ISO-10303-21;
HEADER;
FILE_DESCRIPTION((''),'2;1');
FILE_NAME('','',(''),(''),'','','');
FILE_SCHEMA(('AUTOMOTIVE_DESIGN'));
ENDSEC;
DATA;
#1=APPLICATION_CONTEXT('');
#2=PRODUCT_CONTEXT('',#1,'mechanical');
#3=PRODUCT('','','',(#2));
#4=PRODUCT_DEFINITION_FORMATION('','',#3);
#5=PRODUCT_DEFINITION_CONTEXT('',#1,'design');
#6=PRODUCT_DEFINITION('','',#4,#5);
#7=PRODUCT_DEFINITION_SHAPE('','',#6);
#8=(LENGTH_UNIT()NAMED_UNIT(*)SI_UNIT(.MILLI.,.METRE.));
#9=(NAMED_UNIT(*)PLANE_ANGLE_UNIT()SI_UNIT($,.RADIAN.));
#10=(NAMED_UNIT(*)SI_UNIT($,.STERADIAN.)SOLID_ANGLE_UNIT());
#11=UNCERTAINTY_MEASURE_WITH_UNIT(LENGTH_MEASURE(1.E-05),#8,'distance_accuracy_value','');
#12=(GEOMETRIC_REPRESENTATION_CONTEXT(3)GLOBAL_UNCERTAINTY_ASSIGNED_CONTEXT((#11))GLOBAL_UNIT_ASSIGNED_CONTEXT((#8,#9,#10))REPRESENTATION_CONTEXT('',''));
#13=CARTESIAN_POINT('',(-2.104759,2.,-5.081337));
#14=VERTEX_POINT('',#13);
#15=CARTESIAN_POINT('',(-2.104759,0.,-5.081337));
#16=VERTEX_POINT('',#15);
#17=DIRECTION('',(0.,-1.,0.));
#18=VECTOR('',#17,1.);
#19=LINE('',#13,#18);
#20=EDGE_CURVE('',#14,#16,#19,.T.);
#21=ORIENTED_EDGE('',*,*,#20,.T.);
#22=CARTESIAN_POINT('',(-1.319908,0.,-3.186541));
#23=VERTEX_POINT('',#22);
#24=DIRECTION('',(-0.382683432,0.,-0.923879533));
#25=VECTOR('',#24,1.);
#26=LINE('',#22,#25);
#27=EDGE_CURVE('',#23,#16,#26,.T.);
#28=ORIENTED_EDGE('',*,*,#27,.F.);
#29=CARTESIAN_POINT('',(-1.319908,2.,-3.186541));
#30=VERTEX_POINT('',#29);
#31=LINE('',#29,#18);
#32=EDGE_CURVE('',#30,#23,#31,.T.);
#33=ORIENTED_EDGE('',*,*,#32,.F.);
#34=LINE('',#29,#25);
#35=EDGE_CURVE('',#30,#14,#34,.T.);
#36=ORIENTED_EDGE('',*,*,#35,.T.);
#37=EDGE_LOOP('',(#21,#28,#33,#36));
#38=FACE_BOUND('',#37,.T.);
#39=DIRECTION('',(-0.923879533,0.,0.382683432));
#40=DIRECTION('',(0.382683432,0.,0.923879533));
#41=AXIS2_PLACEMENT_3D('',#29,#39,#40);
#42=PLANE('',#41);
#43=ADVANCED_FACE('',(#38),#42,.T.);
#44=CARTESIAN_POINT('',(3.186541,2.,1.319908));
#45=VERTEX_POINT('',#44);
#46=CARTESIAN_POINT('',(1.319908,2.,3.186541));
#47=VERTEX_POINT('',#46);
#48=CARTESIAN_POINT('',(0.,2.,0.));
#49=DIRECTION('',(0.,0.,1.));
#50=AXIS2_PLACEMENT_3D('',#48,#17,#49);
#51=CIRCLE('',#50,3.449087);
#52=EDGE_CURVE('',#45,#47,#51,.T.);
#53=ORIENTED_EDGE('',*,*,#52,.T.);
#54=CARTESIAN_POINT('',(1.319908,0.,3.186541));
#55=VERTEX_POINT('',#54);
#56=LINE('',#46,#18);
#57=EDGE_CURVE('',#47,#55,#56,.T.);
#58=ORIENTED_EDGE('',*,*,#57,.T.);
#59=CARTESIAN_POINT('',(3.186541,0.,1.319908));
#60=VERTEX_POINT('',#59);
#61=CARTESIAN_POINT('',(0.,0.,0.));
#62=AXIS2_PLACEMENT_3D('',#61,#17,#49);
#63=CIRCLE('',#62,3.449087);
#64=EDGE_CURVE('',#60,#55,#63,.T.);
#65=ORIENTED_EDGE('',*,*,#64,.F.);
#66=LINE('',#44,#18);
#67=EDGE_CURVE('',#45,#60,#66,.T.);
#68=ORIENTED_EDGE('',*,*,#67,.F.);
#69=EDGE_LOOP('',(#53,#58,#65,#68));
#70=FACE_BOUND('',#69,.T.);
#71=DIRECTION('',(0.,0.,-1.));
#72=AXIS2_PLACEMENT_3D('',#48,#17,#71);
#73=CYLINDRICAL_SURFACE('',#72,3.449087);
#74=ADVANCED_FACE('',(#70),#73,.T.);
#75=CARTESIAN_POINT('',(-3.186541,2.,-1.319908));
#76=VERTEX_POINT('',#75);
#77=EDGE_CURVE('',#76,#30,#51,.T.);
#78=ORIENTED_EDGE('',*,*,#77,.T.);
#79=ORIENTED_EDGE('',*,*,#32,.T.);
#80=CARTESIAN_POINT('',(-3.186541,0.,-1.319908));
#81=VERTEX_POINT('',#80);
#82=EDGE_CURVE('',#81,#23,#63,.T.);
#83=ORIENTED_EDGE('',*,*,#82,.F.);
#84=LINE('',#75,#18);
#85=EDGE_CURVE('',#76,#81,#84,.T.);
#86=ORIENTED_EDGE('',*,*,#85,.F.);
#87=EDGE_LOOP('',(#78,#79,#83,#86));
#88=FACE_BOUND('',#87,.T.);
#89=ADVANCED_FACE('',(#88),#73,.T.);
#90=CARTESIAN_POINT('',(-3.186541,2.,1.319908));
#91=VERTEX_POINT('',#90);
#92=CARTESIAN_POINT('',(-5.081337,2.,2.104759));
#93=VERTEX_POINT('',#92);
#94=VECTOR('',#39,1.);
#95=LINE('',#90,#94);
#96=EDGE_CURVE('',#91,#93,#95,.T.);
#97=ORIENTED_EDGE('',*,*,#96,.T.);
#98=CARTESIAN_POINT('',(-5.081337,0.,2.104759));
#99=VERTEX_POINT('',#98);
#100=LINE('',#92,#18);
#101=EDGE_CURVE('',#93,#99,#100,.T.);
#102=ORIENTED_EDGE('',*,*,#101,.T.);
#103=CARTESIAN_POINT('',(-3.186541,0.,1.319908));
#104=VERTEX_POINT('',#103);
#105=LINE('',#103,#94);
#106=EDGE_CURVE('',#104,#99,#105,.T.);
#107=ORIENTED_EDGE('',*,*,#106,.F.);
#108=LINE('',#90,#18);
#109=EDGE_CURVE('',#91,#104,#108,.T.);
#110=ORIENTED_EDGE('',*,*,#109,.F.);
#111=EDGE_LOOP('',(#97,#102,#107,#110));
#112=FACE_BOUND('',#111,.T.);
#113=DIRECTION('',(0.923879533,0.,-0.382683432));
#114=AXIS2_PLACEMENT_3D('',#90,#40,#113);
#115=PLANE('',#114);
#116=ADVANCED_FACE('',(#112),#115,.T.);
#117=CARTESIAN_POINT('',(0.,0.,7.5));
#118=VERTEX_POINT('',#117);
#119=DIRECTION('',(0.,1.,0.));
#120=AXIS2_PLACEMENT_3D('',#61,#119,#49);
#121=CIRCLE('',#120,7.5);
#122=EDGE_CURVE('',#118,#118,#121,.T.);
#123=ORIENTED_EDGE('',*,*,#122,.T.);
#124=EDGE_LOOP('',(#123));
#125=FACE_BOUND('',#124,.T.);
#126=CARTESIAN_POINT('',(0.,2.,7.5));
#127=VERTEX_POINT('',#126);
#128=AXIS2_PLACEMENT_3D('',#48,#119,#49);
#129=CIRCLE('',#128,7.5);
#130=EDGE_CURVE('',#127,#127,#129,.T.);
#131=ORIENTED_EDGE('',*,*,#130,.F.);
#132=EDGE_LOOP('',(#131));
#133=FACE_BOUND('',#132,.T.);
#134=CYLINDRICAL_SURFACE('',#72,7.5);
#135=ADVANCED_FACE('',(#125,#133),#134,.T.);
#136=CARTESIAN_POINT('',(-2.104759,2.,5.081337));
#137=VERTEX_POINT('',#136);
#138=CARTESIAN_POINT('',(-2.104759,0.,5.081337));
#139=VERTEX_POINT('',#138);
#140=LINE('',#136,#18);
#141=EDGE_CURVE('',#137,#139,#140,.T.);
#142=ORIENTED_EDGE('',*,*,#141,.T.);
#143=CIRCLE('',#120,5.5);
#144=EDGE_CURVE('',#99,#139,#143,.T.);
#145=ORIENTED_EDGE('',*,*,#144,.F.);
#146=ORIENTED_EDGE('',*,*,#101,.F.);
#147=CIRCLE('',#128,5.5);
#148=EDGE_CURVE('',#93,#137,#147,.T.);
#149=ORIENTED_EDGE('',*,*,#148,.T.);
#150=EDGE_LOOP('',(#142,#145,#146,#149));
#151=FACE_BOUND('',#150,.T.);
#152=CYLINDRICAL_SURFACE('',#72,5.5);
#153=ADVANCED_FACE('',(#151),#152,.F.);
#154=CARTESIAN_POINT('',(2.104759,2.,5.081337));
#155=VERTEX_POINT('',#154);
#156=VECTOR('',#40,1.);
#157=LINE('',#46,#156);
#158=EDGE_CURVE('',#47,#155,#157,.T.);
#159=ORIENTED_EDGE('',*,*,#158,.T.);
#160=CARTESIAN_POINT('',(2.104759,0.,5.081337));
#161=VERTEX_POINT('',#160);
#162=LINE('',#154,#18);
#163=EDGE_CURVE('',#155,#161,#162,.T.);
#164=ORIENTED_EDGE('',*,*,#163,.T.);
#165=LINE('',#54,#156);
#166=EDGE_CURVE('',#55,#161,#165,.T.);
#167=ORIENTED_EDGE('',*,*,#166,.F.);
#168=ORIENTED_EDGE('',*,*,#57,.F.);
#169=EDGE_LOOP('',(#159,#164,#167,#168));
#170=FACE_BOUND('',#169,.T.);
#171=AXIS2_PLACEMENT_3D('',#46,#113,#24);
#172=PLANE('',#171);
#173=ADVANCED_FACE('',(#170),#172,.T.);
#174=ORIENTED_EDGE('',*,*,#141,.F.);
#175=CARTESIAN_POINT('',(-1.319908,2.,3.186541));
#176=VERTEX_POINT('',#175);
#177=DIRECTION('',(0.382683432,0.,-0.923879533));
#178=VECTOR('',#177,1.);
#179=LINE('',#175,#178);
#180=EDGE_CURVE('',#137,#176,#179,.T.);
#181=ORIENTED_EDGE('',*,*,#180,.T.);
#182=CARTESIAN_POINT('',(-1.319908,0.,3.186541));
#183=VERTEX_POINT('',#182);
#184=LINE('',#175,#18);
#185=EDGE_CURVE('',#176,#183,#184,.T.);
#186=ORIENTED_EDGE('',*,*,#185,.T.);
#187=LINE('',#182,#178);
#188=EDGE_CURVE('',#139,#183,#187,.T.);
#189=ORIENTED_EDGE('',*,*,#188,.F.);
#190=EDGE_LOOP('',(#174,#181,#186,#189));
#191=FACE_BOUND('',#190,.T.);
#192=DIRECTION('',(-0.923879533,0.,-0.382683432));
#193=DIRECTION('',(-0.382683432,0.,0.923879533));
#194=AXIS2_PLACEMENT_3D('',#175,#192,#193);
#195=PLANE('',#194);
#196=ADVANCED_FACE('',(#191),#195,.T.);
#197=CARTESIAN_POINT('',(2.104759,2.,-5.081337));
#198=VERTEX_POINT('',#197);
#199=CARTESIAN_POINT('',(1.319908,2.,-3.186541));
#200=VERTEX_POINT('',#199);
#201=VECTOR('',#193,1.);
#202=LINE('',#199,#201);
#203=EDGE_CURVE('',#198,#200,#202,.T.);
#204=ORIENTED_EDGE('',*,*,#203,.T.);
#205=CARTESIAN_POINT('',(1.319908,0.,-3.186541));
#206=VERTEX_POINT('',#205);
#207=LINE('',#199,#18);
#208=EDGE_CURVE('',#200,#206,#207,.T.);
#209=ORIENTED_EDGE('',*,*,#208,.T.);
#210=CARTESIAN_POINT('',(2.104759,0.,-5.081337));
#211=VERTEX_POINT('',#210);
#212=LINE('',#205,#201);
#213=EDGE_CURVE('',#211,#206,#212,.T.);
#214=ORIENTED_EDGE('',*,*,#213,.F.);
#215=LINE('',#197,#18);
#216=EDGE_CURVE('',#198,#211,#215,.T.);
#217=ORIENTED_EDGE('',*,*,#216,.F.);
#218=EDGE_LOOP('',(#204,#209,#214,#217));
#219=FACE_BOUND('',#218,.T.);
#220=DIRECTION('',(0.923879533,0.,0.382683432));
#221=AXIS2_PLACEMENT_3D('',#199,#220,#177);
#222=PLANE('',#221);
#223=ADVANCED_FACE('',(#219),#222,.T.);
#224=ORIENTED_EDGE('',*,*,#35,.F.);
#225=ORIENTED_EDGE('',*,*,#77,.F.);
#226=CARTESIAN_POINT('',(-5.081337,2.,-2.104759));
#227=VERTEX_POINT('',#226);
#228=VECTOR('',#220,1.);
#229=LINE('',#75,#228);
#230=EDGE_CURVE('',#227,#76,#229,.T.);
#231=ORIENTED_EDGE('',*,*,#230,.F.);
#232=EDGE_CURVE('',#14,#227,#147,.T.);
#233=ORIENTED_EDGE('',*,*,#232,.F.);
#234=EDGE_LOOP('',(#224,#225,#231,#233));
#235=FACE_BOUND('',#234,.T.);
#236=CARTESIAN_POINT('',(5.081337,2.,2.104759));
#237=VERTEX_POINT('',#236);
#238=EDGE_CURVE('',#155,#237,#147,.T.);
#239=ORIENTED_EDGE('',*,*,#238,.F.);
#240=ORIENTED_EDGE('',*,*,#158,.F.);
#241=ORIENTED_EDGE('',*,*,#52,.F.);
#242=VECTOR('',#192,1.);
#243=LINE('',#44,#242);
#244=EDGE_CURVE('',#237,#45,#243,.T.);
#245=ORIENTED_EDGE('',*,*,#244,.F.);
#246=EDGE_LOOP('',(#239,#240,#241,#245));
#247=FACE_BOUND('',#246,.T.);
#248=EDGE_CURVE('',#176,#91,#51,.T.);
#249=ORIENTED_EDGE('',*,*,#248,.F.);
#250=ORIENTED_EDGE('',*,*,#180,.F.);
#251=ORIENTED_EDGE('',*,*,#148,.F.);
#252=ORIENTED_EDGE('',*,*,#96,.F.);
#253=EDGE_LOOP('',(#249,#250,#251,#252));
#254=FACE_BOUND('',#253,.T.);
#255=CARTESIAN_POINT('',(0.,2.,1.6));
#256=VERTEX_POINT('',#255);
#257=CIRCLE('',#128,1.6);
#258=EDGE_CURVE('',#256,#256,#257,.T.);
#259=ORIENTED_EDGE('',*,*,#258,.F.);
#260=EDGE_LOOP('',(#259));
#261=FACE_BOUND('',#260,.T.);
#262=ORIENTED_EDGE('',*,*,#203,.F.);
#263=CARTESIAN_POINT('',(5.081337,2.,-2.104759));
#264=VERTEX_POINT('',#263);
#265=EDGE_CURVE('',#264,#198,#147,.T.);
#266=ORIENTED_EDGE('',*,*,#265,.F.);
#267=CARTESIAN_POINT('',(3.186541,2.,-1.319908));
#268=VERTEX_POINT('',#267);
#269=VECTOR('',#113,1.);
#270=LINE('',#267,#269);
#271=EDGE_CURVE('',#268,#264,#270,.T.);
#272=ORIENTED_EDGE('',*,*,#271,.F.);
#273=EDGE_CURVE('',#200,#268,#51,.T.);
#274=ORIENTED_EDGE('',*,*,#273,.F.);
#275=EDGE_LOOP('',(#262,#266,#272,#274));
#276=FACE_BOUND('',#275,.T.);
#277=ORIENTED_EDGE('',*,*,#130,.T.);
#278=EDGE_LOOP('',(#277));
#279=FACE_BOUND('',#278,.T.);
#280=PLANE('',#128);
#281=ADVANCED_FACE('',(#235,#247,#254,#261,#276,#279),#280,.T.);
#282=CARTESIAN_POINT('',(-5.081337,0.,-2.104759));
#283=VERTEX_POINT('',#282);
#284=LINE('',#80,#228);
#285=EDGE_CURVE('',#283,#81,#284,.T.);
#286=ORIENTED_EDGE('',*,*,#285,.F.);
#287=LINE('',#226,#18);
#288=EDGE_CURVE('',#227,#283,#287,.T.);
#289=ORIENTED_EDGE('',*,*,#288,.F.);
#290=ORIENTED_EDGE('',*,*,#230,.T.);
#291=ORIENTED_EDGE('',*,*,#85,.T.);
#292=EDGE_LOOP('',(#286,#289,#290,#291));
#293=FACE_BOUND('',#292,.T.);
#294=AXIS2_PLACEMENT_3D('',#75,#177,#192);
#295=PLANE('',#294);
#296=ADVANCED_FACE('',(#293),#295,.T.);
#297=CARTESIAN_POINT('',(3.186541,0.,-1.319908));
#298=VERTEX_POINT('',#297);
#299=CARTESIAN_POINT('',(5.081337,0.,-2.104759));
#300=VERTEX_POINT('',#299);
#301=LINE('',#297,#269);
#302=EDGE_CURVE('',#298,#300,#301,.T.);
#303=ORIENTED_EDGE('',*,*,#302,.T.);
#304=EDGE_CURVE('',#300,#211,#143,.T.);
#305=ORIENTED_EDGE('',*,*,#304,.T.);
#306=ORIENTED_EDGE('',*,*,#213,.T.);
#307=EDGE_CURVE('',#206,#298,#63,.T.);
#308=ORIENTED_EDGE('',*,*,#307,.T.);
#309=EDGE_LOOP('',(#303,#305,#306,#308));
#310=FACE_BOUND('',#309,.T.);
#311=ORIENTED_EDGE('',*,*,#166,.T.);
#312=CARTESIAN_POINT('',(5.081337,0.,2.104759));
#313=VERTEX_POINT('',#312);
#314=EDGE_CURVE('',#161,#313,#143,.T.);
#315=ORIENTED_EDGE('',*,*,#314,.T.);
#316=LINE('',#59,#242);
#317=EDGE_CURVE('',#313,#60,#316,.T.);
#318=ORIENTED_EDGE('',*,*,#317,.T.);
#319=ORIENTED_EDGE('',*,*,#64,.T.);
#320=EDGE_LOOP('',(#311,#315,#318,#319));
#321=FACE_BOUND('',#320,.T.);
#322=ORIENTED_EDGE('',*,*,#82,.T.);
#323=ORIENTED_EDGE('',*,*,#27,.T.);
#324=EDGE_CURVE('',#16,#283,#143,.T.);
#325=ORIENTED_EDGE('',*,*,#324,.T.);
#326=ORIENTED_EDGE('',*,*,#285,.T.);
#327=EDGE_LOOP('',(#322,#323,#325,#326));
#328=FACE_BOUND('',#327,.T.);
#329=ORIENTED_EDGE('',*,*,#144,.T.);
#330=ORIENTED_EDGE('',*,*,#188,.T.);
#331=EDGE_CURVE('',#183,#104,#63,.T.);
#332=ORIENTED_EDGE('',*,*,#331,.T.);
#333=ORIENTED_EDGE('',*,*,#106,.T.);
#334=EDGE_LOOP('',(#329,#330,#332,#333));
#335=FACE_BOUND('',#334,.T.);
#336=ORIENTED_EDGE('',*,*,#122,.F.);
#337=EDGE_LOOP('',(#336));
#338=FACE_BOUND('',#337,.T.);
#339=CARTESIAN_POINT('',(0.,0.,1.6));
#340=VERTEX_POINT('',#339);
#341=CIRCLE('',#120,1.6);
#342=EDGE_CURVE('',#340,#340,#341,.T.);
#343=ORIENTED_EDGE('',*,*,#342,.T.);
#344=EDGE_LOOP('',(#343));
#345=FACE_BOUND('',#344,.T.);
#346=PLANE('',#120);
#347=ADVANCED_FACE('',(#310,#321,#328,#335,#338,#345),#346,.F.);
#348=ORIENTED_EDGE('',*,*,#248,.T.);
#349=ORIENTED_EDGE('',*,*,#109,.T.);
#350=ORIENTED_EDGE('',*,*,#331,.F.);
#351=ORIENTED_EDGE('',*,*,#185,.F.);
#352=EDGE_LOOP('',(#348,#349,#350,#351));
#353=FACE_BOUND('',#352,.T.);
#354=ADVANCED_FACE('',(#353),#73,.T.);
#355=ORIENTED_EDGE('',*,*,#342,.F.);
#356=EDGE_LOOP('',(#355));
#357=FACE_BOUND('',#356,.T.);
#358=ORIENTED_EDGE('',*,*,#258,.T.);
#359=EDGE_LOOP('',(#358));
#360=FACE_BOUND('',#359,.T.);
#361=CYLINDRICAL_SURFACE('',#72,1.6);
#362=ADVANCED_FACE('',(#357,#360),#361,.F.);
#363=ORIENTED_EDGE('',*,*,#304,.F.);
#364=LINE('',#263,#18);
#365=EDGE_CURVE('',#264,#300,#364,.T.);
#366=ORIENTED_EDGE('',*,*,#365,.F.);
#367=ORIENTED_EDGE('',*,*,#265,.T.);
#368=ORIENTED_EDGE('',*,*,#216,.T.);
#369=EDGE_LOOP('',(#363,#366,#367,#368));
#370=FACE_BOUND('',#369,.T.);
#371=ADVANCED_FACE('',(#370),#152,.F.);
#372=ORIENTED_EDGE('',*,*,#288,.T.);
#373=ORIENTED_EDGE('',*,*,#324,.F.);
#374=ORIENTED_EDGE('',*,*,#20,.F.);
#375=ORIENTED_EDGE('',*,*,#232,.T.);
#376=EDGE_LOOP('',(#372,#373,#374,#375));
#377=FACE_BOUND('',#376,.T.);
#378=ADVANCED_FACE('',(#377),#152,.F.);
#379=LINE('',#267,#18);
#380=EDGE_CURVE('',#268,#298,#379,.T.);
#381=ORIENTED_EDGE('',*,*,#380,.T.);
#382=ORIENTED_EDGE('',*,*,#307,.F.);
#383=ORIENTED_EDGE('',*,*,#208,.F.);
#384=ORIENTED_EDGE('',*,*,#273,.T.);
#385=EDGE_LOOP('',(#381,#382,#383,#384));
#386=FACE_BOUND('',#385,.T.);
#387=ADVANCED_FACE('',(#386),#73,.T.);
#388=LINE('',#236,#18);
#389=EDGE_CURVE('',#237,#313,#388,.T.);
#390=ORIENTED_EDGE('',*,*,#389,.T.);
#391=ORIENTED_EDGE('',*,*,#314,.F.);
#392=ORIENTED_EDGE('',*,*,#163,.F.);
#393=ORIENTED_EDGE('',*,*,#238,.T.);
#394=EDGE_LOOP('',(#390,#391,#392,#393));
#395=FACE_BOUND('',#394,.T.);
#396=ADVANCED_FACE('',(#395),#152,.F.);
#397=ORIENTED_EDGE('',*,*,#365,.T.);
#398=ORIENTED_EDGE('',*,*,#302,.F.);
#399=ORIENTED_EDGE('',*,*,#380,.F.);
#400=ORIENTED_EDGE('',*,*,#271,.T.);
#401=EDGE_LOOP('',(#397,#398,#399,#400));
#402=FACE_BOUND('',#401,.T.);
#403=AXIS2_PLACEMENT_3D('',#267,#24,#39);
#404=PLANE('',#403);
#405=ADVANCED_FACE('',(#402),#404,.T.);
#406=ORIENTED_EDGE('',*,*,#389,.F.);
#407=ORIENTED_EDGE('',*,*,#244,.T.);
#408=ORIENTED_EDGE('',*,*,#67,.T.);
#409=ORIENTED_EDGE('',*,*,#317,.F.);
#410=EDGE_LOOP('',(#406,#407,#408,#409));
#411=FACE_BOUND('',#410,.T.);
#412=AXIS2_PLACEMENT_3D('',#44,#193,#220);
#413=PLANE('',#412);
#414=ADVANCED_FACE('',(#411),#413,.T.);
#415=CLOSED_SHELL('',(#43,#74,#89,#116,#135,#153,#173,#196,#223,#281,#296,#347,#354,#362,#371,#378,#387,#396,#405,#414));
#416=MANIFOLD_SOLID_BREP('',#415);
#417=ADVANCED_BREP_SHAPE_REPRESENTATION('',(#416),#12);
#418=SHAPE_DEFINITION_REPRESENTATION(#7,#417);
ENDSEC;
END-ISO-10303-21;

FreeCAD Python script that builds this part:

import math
import FreeCAD as App
import Part
import Sketcher
from FreeCAD import Vector
Q = App.Units.Quantity

doc = App.newDocument("Part")
body = doc.addObject("PartDesign::Body", "Body")

sketch1 = body.newObject("Sketcher::SketchObject", "Sketch")
sketch1.AttachmentSupport = (doc.getObject("XZ_Plane"), [""])
sketch1.MapMode = "FlatFace"
sketch1.addGeometry([
    Part.Circle(Vector(0, 0, 0), Vector(0, 0, 1), 7.5),
    Part.LineSegment(Vector(-2.1, -5.1, 0), Vector(-1.3, -3.2, 0)),
    Part.ArcOfCircle(Part.Circle(Vector(0, 0, 0), Vector(0, 0, 1), 3.4), math.radians(-158), math.radians(-112)),
    Part.LineSegment(Vector(-3.2, -1.3, 0), Vector(-5.1, -2.1, 0)),
    Part.ArcOfCircle(Part.Circle(Vector(0, 0, 0), Vector(0, 0, 1), 5.5), math.radians(-158), math.radians(-112)),
    Part.ArcOfCircle(Part.Circle(Vector(0, 0, 0), Vector(0, 0, 1), 3.4), math.radians(112), math.radians(158)),
    Part.LineSegment(Vector(-1.3, 3.2, 0), Vector(-2.1, 5.1, 0)),
    Part.ArcOfCircle(Part.Circle(Vector(0, 0, 0), Vector(0, 0, 1), 5.5), math.radians(112), math.radians(158)),
    Part.LineSegment(Vector(-5.1, 2.1, 0), Vector(-3.2, 1.3, 0)),
    Part.ArcOfCircle(Part.Circle(Vector(0, 0, 0), Vector(0, 0, 1), 3.4), math.radians(-68), math.radians(-22)),
    Part.LineSegment(Vector(1.3, -3.2, 0), Vector(2.1, -5.1, 0)),
    Part.ArcOfCircle(Part.Circle(Vector(0, 0, 0), Vector(0, 0, 1), 5.5), math.radians(-68), math.radians(-22)),
    Part.LineSegment(Vector(5.1, -2.1, 0), Vector(3.2, -1.3, 0)),
    Part.Circle(Vector(0, 0, 0), Vector(0, 0, 1), 1.6),
    Part.ArcOfCircle(Part.Circle(Vector(0, 0, 0), Vector(0, 0, 1), 3.4), math.radians(22), math.radians(68)),
    Part.LineSegment(Vector(3.2, 1.3, 0), Vector(5.1, 2.1, 0)),
    Part.ArcOfCircle(Part.Circle(Vector(0, 0, 0), Vector(0, 0, 1), 5.5), math.radians(22), math.radians(68)),
    Part.LineSegment(Vector(2.1, 5.1, 0), Vector(1.3, 3.2, 0)),
], False)
sketch1.addConstraint([
    Sketcher.Constraint("Coincident", 1, 2, 2, 2),
    Sketcher.Constraint("Coincident", 2, 1, 3, 1),
    Sketcher.Constraint("Coincident", 3, 2, 4, 1),
    Sketcher.Constraint("Coincident", 4, 2, 1, 1),
    Sketcher.Constraint("Coincident", 5, 1, 6, 1),
    Sketcher.Constraint("Coincident", 6, 2, 7, 1),
    Sketcher.Constraint("Coincident", 7, 2, 8, 1),
    Sketcher.Constraint("Coincident", 8, 2, 5, 2),
    Sketcher.Constraint("Coincident", 9, 1, 10, 1),
    Sketcher.Constraint("Coincident", 10, 2, 11, 1),
    Sketcher.Constraint("Coincident", 11, 2, 12, 1),
    Sketcher.Constraint("Coincident", 12, 2, 9, 2),
    Sketcher.Constraint("Coincident", 14, 1, 15, 1),
    Sketcher.Constraint("Coincident", 15, 2, 16, 1),
    Sketcher.Constraint("Coincident", 16, 2, 17, 1),
    Sketcher.Constraint("Coincident", 17, 2, 14, 2),
    Sketcher.Constraint("Coincident", 0, 3, -1, 1),
    Sketcher.Constraint("Coincident", 2, 3, -1, 1),
    Sketcher.Constraint("Coincident", 4, 3, -1, 1),
    Sketcher.Constraint("Coincident", 5, 3, -1, 1),
    Sketcher.Constraint("Coincident", 7, 3, -1, 1),
    Sketcher.Constraint("Coincident", 9, 3, -1, 1),
    Sketcher.Constraint("Coincident", 11, 3, -1, 1),
    Sketcher.Constraint("Coincident", 13, 3, -1, 1),
    Sketcher.Constraint("Coincident", 14, 3, -1, 1),
    Sketcher.Constraint("Coincident", 16, 3, -1, 1),
    Sketcher.Constraint("Equal", 2, 5),
    Sketcher.Constraint("Equal", 4, 7),
    Sketcher.Constraint("Equal", 5, 9),
    Sketcher.Constraint("Equal", 7, 11),
    Sketcher.Constraint("Equal", 9, 14),
    Sketcher.Constraint("Equal", 11, 16),
    Sketcher.Constraint("Perpendicular", 3, 6),
    Sketcher.Constraint("Perpendicular", 1, 8),
    Sketcher.Constraint("Parallel", 6, 10),
    Sketcher.Constraint("Parallel", 8, 12),
    Sketcher.Constraint("Perpendicular", 10, 15),
    Sketcher.Constraint("Perpendicular", 12, 17),
    Sketcher.Constraint("Horizontal", 1, 2, 9, 1),
    Sketcher.Constraint("Horizontal", 4, 2, 10, 2),
    Sketcher.Constraint("Horizontal", 3, 2, 11, 2),
    Sketcher.Constraint("Horizontal", 8, 2, 14, 1),
    Sketcher.Constraint("Horizontal", 6, 2, 16, 2),
    Sketcher.Constraint("Vertical", 1, 2, 5, 1),
    Sketcher.Constraint("Vertical", 3, 2, 7, 2),
    Sketcher.Constraint("Diameter", 0, Q("15 mm")),
    Sketcher.Constraint("Diameter", 13, Q("3.2 mm")),
    Sketcher.Constraint("Radius", 4, Q("5.5 mm")),
    Sketcher.Constraint("Angle", 1, Q("67.5 deg")),
    Sketcher.Constraint("Radius", 2, Q("3.449087 mm")),
    Sketcher.Constraint("DistanceX", 1, 2, -1, 1, Q("1.319908 mm")),
    Sketcher.Constraint("DistanceX", 2, 1, -1, 1, Q("3.186541 mm")),
])
pad1 = body.newObject("PartDesign::Pad", "Pad")
pad1.Profile = sketch1
pad1.Length = 2
pad1.Reversed = True

doc.recompute()
